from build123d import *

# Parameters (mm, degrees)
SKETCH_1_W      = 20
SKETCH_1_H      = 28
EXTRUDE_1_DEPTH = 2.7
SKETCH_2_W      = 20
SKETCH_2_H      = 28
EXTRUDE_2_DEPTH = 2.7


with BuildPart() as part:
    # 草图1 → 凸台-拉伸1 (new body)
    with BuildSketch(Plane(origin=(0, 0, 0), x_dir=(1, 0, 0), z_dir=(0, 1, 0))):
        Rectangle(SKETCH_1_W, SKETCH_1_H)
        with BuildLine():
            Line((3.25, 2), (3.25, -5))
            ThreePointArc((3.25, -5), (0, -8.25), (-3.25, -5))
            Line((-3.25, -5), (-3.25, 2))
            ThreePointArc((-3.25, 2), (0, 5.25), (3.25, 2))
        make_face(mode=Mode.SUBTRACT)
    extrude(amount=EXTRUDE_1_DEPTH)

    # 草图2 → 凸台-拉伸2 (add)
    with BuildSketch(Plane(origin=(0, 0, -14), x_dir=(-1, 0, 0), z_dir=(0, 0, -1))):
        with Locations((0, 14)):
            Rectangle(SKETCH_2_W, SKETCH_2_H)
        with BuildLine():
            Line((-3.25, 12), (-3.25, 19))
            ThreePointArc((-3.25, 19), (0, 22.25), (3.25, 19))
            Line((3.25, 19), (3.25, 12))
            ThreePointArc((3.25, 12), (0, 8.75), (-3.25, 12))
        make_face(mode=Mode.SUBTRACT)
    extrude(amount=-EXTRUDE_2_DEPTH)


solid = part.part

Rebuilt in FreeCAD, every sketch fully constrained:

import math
import FreeCAD as App
import Part
import Sketcher
from FreeCAD import Vector

doc = App.newDocument("Part")
body = doc.addObject("PartDesign::Body", "Body")

sketch1 = body.newObject("Sketcher::SketchObject", "Sketch")
sketch1.AttachmentSupport = (doc.getObject("XZ_Plane"), [""])
sketch1.MapMode = "FlatFace"
sketch1.addGeometry(Part.LineSegment(Vector(-10, -14, 0), Vector(-10, 14, 0)), False)
sketch1.addGeometry(Part.LineSegment(Vector(-10, 14, 0), Vector(10, 14, 0)), False)
sketch1.addGeometry(Part.LineSegment(Vector(10, 14, 0), Vector(10, -14, 0)), False)
sketch1.addGeometry(Part.LineSegment(Vector(10, -14, 0), Vector(-10, -14, 0)), False)
sketch1.addGeometry(Part.ArcOfCircle(Part.Circle(Vector(0, -2, 0), Vector(0, 0, 1), 3.2), math.radians(180), math.radians(360)), False)
sketch1.addGeometry(Part.LineSegment(Vector(3.2, -2, 0), Vector(3.2, 5, 0)), False)
sketch1.addGeometry(Part.ArcOfCircle(Part.Circle(Vector(0, 5, 0), Vector(0, 0, 1), 3.2), math.radians(0), math.radians(180)), False)
sketch1.addGeometry(Part.LineSegment(Vector(-3.2, 5, 0), Vector(-3.2, -2, 0)), False)
sketch1.addConstraint(Sketcher.Constraint("Coincident", 0, 2, 1, 1))
sketch1.addConstraint(Sketcher.Constraint("Coincident", 1, 2, 2, 1))
sketch1.addConstraint(Sketcher.Constraint("Coincident", 2, 2, 3, 1))
sketch1.addConstraint(Sketcher.Constraint("Coincident", 3, 2, 0, 1))
sketch1.addConstraint(Sketcher.Constraint("Tangent", 4, 2, 5, 1))
sketch1.addConstraint(Sketcher.Constraint("Tangent", 5, 2, 6, 1))
sketch1.addConstraint(Sketcher.Constraint("Tangent", 6, 2, 7, 1))
sketch1.addConstraint(Sketcher.Constraint("Tangent", 7, 2, 4, 1))
sketch1.addConstraint(Sketcher.Constraint("Vertical", 0))
sketch1.addConstraint(Sketcher.Constraint("Horizontal", 1))
sketch1.addConstraint(Sketcher.Constraint("Vertical", 2))
sketch1.addConstraint(Sketcher.Constraint("Horizontal", 3))
sketch1.addConstraint(Sketcher.Constraint("Vertical", 5))
sketch1.addConstraint(Sketcher.Constraint("Vertical", 7))
sketch1.addConstraint(Sketcher.Constraint("Symmetric", 0, 2, 2, 2, -1, 1))
sketch1.addConstraint(Sketcher.Constraint("PointOnObject", 4, 3, -2))
sketch1.addConstraint(Sketcher.Constraint("DistanceX", 1, 1, 1, 2, 20.0))
sketch1.addConstraint(Sketcher.Constraint("DistanceY", 0, 1, 0, 2, 28.0))
sketch1.addConstraint(Sketcher.Constraint("DistanceY", 5, 1, 5, 2, 7.0))
sketch1.addConstraint(Sketcher.Constraint("Radius", 4, 3.25))
sketch1.addConstraint(Sketcher.Constraint("DistanceY", 4, 3, -1, 1, 2.0))
pad1 = body.newObject("PartDesign::Pad", "Pad")
pad1.Profile = sketch1
pad1.Length = 2.7
pad1.Reversed = True

sketch2 = body.newObject("Sketcher::SketchObject", "Sketch001")
sketch2.AttachmentSupport = (doc.getObject("XY_Plane"), [""])
sketch2.MapMode = "FlatFace"
sketch2.AttachmentOffset = App.Placement(Vector(0, 0, -14), App.Rotation())
sketch2.addGeometry(Part.LineSegment(Vector(10, 28, 0), Vector(10, 0, 0)), False)
sketch2.addGeometry(Part.LineSegment(Vector(10, 0, 0), Vector(-10, 0, 0)), False)
sketch2.addGeometry(Part.LineSegment(Vector(-10, 0, 0), Vector(-10, 28, 0)), False)
sketch2.addGeometry(Part.LineSegment(Vector(-10, 28, 0), Vector(10, 28, 0)), False)
sketch2.addGeometry(Part.ArcOfCircle(Part.Circle(Vector(0, 12, 0), Vector(0, 0, 1), 3.2), math.radians(180), math.radians(360)), False)
sketch2.addGeometry(Part.LineSegment(Vector(3.2, 12, 0), Vector(3.2, 19, 0)), False)
sketch2.addGeometry(Part.ArcOfCircle(Part.Circle(Vector(0, 19, 0), Vector(0, 0, 1), 3.2), math.radians(0), math.radians(180)), False)
sketch2.addGeometry(Part.LineSegment(Vector(-3.2, 19, 0), Vector(-3.2, 12, 0)), False)
sketch2.addConstraint(Sketcher.Constraint("Coincident", 0, 2, 1, 1))
sketch2.addConstraint(Sketcher.Constraint("Coincident", 1, 2, 2, 1))
sketch2.addConstraint(Sketcher.Constraint("Coincident", 2, 2, 3, 1))
sketch2.addConstraint(Sketcher.Constraint("Coincident", 3, 2, 0, 1))
sketch2.addConstraint(Sketcher.Constraint("Tangent", 4, 2, 5, 1))
sketch2.addConstraint(Sketcher.Constraint("Tangent", 5, 2, 6, 1))
sketch2.addConstraint(Sketcher.Constraint("Tangent", 6, 2, 7, 1))
sketch2.addConstraint(Sketcher.Constraint("Tangent", 7, 2, 4, 1))
sketch2.addConstraint(Sketcher.Constraint("Vertical", 0))
sketch2.addConstraint(Sketcher.Constraint("Horizontal", 1))
sketch2.addConstraint(Sketcher.Constraint("Vertical", 2))
sketch2.addConstraint(Sketcher.Constraint("Horizontal", 3))
sketch2.addConstraint(Sketcher.Constraint("Vertical", 5))
sketch2.addConstraint(Sketcher.Constraint("Vertical", 7))
sketch2.addConstraint(Sketcher.Constraint("Symmetric", 0, 2, 1, 2, -1, 1))
sketch2.addConstraint(Sketcher.Constraint("PointOnObject", 4, 3, -2))
sketch2.addConstraint(Sketcher.Constraint("DistanceX", 1, 2, 1, 1, 20.0))
sketch2.addConstraint(Sketcher.Constraint("DistanceY", 0, 2, 0, 1, 28.0))
sketch2.addConstraint(Sketcher.Constraint("DistanceY", 5, 1, 5, 2, 7.0))
sketch2.addConstraint(Sketcher.Constraint("Radius", 4, 3.25))
sketch2.addConstraint(Sketcher.Constraint("DistanceY", -1, 1, 4, 3, 12.0))
pad2 = body.newObject("PartDesign::Pad", "Pad001")
pad2.Profile = sketch2
pad2.Length = 2.7

doc.recompute()
